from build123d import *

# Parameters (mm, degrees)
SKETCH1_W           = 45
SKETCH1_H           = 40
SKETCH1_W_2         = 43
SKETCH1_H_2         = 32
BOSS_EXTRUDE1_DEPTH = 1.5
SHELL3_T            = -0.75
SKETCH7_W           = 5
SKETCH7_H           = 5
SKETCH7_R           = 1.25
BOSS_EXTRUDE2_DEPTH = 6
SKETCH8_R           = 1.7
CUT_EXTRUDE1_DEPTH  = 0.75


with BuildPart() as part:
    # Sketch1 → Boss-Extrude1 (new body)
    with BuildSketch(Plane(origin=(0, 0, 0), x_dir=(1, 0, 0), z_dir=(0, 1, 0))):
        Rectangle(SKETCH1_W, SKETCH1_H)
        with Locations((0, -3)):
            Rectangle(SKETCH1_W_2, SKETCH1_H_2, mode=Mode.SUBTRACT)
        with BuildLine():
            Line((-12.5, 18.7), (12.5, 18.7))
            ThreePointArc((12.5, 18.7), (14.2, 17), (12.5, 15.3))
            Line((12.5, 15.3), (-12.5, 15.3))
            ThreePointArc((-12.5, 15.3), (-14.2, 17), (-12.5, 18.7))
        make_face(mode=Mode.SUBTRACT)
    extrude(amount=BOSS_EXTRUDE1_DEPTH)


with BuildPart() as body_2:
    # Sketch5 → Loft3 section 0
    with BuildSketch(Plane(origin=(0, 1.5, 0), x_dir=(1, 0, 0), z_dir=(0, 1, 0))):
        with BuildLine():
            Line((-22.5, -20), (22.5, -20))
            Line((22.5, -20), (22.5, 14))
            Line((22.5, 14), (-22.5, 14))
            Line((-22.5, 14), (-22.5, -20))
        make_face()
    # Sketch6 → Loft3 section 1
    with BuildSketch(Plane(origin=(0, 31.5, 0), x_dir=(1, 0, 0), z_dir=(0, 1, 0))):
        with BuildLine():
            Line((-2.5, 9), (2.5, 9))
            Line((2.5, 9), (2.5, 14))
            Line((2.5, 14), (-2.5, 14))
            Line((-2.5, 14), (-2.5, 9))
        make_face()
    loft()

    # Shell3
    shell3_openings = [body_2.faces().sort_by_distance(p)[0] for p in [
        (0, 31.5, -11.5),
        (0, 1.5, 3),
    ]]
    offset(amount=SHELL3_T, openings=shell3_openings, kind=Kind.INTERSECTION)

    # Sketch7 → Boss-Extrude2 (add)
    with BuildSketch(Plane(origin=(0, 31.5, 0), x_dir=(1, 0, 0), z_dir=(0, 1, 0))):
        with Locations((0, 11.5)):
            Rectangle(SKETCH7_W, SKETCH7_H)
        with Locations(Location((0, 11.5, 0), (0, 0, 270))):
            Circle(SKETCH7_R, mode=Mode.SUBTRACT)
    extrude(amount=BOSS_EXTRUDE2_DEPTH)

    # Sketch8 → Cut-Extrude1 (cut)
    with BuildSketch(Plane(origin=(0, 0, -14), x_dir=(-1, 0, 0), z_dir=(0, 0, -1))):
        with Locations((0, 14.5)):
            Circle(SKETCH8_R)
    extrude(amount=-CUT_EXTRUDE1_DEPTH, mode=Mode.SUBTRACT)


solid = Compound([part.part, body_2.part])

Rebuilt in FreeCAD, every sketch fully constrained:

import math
import FreeCAD as App
import Part
import Sketcher
from FreeCAD import Vector
Q = App.Units.Quantity


def faces_at(feature, points):
    """Names of the faces that lie closest to the given points."""
    faces = feature.Shape.Faces
    near = lambda p: min(range(len(faces)), key=lambda i: faces[i].distToShape(Part.Vertex(*p))[0])
    return sorted({f"Face{near(p) + 1}" for p in points})

doc = App.newDocument("Part")
body = doc.addObject("PartDesign::Body", "Body")

# Sketch on XZ plane
sketch1 = body.newObject("Sketcher::SketchObject", "Sketch")
sketch1.AttachmentSupport = (doc.getObject("XZ_Plane"), [""])
sketch1.MapMode = "FlatFace"
sketch1.addGeometry([
    Part.LineSegment(Vector(-22.5, -20, 0), Vector(-22.5, 20, 0)),  # 0
    Part.LineSegment(Vector(-22.5, 20, 0), Vector(22.5, 20, 0)),  # 1
    Part.LineSegment(Vector(22.5, 20, 0), Vector(22.5, -20, 0)),  # 2
    Part.LineSegment(Vector(22.5, -20, 0), Vector(-22.5, -20, 0)),  # 3
    Part.LineSegment(Vector(21.5, 19, 0), Vector(-21.5, 19, 0)),  # 4
    Part.LineSegment(Vector(-21.5, 19, 0), Vector(-21.5, -13, 0)),  # 5
    Part.LineSegment(Vector(-21.5, -13, 0), Vector(21.5, -13, 0)),  # 6
    Part.LineSegment(Vector(21.5, -13, 0), Vector(21.5, 19, 0)),  # 7
    Part.ArcOfCircle(Part.Circle(Vector(-12.5, -17, 0), Vector(0, 0, 1), 1.7), math.radians(90), math.radians(270)),  # 8
    Part.LineSegment(Vector(-12.5, -18.7, 0), Vector(12.5, -18.7, 0)),  # 9
    Part.ArcOfCircle(Part.Circle(Vector(12.5, -17, 0), Vector(0, 0, 1), 1.7), math.radians(-90), math.radians(90)),  # 10
    Part.LineSegment(Vector(12.5, -15.3, 0), Vector(-12.5, -15.3, 0)),  # 11
], False)
sketch1.addConstraint([
    Sketcher.Constraint("Coincident", 0, 2, 1, 1),
    Sketcher.Constraint("Coincident", 1, 2, 2, 1),
    Sketcher.Constraint("Coincident", 2, 2, 3, 1),
    Sketcher.Constraint("Coincident", 3, 2, 0, 1),
    Sketcher.Constraint("Coincident", 4, 2, 5, 1),
    Sketcher.Constraint("Coincident", 5, 2, 6, 1),
    Sketcher.Constraint("Coincident", 6, 2, 7, 1),
    Sketcher.Constraint("Coincident", 7, 2, 4, 1),
    Sketcher.Constraint("Tangent", 8, 2, 9, 1),
    Sketcher.Constraint("Tangent", 9, 2, 10, 1),
    Sketcher.Constraint("Tangent", 10, 2, 11, 1),
    Sketcher.Constraint("Tangent", 11, 2, 8, 1),
    Sketcher.Constraint("Vertical", 0),
    Sketcher.Constraint("Horizontal", 1),
    Sketcher.Constraint("Vertical", 2),
    Sketcher.Constraint("Horizontal", 3),
    Sketcher.Constraint("Horizontal", 4),
    Sketcher.Constraint("Vertical", 5),
    Sketcher.Constraint("Horizontal", 6),
    Sketcher.Constraint("Vertical", 7),
    Sketcher.Constraint("Horizontal", 9),
    Sketcher.Constraint("Horizontal", 11),
    Sketcher.Constraint("Symmetric", 0, 2, 2, 2, -1, 1),
    Sketcher.Constraint("Radius", 8, Q("1.7 mm")),
    Sketcher.Constraint("DistanceX", 1, 1, 1, 2, Q("45 mm")),
    Sketcher.Constraint("DistanceX", 4, 2, 4, 1, Q("43 mm")),
    Sketcher.Constraint("DistanceX", 9, 1, 9, 2, Q("25 mm")),
    Sketcher.Constraint("DistanceY", 0, 1, 0, 2, Q("40 mm")),
    Sketcher.Constraint("DistanceY", 5, 2, 5, 1, Q("32 mm")),
    Sketcher.Constraint("DistanceY", 8, 3, -1, 1, Q("17 mm")),
    Sketcher.Constraint("DistanceY", -1, 1, 4, 2, Q("19 mm")),
    Sketcher.Constraint("DistanceX", 0, 2, 8, 3, Q("10 mm")),
    Sketcher.Constraint("DistanceX", 0, 2, 4, 2, Q("1 mm")),
])
pad1 = body.newObject("PartDesign::Pad", "Pad")
pad1.Profile = sketch1
pad1.Length = 1.5
pad1.Reversed = True
body2 = doc.addObject("PartDesign::Body", "Body001")

# Sketch on XZ plane
sketch2 = body2.newObject("Sketcher::SketchObject", "Sketch001")
sketch2.AttachmentSupport = (doc.getObject("XZ_Plane001"), [""])
sketch2.MapMode = "FlatFace"
sketch2.AttachmentOffset = App.Placement(Vector(0, 0, -1.5), App.Rotation())
sketch2.addGeometry([
    Part.LineSegment(Vector(-22, 20, 0), Vector(22, 20, 0)),
    Part.LineSegment(Vector(22, 20, 0), Vector(22, -14, 0)),
    Part.LineSegment(Vector(22, -14, 0), Vector(-22, -14, 0)),
    Part.LineSegment(Vector(-22, -14, 0), Vector(-22, 20, 0)),
], False)
sketch2.addConstraint([
    Sketcher.Constraint("Coincident", 0, 2, 1, 1),
    Sketcher.Constraint("Coincident", 1, 2, 2, 1),
    Sketcher.Constraint("Coincident", 2, 2, 3, 1),
    Sketcher.Constraint("Coincident", 3, 2, 0, 1),
    Sketcher.Constraint("Horizontal", 0),
    Sketcher.Constraint("Vertical", 1),
    Sketcher.Constraint("Horizontal", 2),
    Sketcher.Constraint("Vertical", 3),
    Sketcher.Constraint("DistanceX", 0, 1, 0, 2, Q("45 mm")),
    Sketcher.Constraint("DistanceY", 1, 2, 1, 1, Q("34 mm")),
    Sketcher.Constraint("DistanceY", -1, 1, 0, 2, Q("20 mm")),
    Sketcher.Constraint("DistanceX", -1, 1, 0, 2, Q("22.5 mm")),
])

# Sketch on XZ plane
sketch3 = body2.newObject("Sketcher::SketchObject", "Sketch002")
sketch3.AttachmentSupport = (doc.getObject("XZ_Plane001"), [""])
sketch3.MapMode = "FlatFace"
sketch3.AttachmentOffset = App.Placement(Vector(0, 0, -31.5), App.Rotation())
sketch3.addGeometry([
    Part.LineSegment(Vector(-2, -9, 0), Vector(2, -9, 0)),
    Part.LineSegment(Vector(2, -9, 0), Vector(2, -14, 0)),
    Part.LineSegment(Vector(2, -14, 0), Vector(-2, -14, 0)),
    Part.LineSegment(Vector(-2, -14, 0), Vector(-2, -9, 0)),
], False)
sketch3.addConstraint([
    Sketcher.Constraint("Coincident", 0, 2, 1, 1),
    Sketcher.Constraint("Coincident", 1, 2, 2, 1),
    Sketcher.Constraint("Coincident", 2, 2, 3, 1),
    Sketcher.Constraint("Coincident", 3, 2, 0, 1),
    Sketcher.Constraint("Horizontal", 0),
    Sketcher.Constraint("Vertical", 1),
    Sketcher.Constraint("Horizontal", 2),
    Sketcher.Constraint("Vertical", 3),
    Sketcher.Constraint("Equal", 2, 1),
    Sketcher.Constraint("DistanceX", 0, 1, 0, 2, Q("5 mm")),
    Sketcher.Constraint("DistanceY", 0, 2, -1, 1, Q("9 mm")),
    Sketcher.Constraint("DistanceX", -1, 1, 0, 2, Q("2.5 mm")),
])

additiveloft = body2.newObject("PartDesign::AdditiveLoft", "AdditiveLoft")
additiveloft.Profile = sketch2
additiveloft.Sections = [sketch3]
doc.recompute()

thickness = body2.newObject("PartDesign::Thickness", "Thickness")
thickness.Base = (additiveloft, faces_at(additiveloft, [(0, 31.5, -11.5), (0, 1.5, 3)]))
thickness.Value = 0.75
thickness.Reversed = True
thickness.Join = "Intersection"

# Sketch on XZ plane
sketch4 = body2.newObject("Sketcher::SketchObject", "Sketch003")
sketch4.AttachmentSupport = (doc.getObject("XZ_Plane001"), [""])
sketch4.MapMode = "FlatFace"
sketch4.AttachmentOffset = App.Placement(Vector(0, 0, -31.5), App.Rotation())
sketch4.addGeometry([
    Part.LineSegment(Vector(-2.5, -14, 0), Vector(-2.5, -9, 0)),  # 0
    Part.LineSegment(Vector(-2.5, -9, 0), Vector(2.5, -9, 0)),  # 1
    Part.LineSegment(Vector(2.5, -9, 0), Vector(2.5, -14, 0)),  # 2
    Part.LineSegment(Vector(2.5, -14, 0), Vector(-2.5, -14, 0)),  # 3
    Part.Circle(Vector(0, -11.5, 0), Vector(0, 0, 1), 1.2),  # 4
], False)
sketch4.addConstraint([
    Sketcher.Constraint("Coincident", 0, 2, 1, 1),
    Sketcher.Constraint("Coincident", 1, 2, 2, 1),
    Sketcher.Constraint("Coincident", 2, 2, 3, 1),
    Sketcher.Constraint("Coincident", 3, 2, 0, 1),
    Sketcher.Constraint("Vertical", 0),
    Sketcher.Constraint("Horizontal", 1),
    Sketcher.Constraint("Vertical", 2),
    Sketcher.Constraint("Horizontal", 3),
    Sketcher.Constraint("PointOnObject", 4, 3, -2),
    Sketcher.Constraint("Equal", 3, 0),
    Sketcher.Constraint("Diameter", 4, Q("2.5 mm")),
    Sketcher.Constraint("DistanceX", 1, 1, 1, 2, Q("5 mm")),
    Sketcher.Constraint("DistanceY", 0, 2, -1, 1, Q("9 mm")),
    Sketcher.Constraint("DistanceY", 4, 3, -1, 1, Q("11.5 mm")),
    Sketcher.Constraint("DistanceX", 0, 2, -1, 1, Q("2.5 mm")),
])
pad2 = body2.newObject("PartDesign::Pad", "Pad001")
pad2.Profile = sketch4
pad2.Length = 6
pad2.Reversed = True

# Sketch on XY plane
sketch5 = body2.newObject("Sketcher::SketchObject", "Sketch004")
sketch5.AttachmentSupport = (doc.getObject("XY_Plane001"), [""])
sketch5.MapMode = "FlatFace"
sketch5.AttachmentOffset = App.Placement(Vector(0, 0, -14), App.Rotation())
sketch5.addGeometry(Part.Circle(Vector(0, 14.5, 0), Vector(0, 0, 1), 1.7), False)
sketch5.addConstraint([
    Sketcher.Constraint("PointOnObject", 0, 3, -2),
    Sketcher.Constraint("Diameter", 0, Q("3.4 mm")),
    Sketcher.Constraint("DistanceY", -1, 1, 0, 3, Q("14.5 mm")),
])
pocket1 = body2.newObject("PartDesign::Pocket", "Pocket")
pocket1.Profile = sketch5
pocket1.Length = 0.75
pocket1.Reversed = True

doc.recompute()
